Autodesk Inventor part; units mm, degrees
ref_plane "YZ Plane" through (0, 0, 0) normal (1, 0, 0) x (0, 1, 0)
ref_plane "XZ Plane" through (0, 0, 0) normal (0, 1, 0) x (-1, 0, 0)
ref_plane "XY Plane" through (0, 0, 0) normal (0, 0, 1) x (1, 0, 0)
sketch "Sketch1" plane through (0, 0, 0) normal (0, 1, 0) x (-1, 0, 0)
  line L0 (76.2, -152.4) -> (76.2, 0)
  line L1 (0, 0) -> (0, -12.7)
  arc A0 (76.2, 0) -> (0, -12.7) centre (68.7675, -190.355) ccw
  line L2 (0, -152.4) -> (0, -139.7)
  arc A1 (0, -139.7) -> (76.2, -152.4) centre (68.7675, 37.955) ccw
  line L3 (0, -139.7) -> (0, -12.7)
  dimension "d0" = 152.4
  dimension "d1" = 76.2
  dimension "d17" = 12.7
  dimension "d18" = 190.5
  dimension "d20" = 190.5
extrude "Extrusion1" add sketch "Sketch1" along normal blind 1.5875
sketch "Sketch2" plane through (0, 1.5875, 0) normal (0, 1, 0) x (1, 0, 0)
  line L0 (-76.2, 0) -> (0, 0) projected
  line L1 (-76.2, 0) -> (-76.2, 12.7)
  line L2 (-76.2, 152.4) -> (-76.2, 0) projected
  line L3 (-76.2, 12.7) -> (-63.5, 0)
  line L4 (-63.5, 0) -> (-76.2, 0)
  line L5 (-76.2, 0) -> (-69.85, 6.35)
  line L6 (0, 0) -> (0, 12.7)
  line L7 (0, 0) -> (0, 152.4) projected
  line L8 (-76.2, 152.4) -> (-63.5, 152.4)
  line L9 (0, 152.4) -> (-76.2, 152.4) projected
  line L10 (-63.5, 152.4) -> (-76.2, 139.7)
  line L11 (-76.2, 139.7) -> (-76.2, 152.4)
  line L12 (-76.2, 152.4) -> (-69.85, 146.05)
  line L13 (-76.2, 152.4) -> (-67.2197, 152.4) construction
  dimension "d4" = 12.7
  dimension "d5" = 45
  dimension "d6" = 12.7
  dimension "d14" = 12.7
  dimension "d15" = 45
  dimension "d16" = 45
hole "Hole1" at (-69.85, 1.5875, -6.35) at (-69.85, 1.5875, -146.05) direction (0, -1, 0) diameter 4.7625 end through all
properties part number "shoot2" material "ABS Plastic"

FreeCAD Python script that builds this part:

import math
import FreeCAD as App
import Part
import Sketcher

V = App.Vector
Q = App.Units.Quantity

doc = App.newDocument("Part")
params = doc.addObject("Spreadsheet::Sheet", "Params")
for row, (alias, value) in enumerate([
    ("sketch1_radius", "7.5 in"),
    ("sketch1_height", "6 in"),
    ("pad1_length", "0.0625 in"),
    ("sketch2_diameter", "0.1875 in"),
    ("hole_diameter", "0.1875 in"),
], start=1):
    params.set(f"A{row}", alias)
    params.set(f"B{row}", "=" + value)
    params.setAlias(f"B{row}", alias)

body = doc.addObject("PartDesign::Body", "Body")

# Sketch on XZ plane
sketch1 = body.newObject("Sketcher::SketchObject", "Sketch")
sketch1.AttachmentSupport = (doc.getObject("XZ_Plane"), [""])
sketch1.MapMode = "FlatFace"
sketch1.addGeometry([
    Part.ArcOfCircle(Part.Circle(V(-68.7675, 37.955, 0), V(0, 0, 1), 190.500047), math.radians(-92.236005), math.radians(-68.839351)),
    Part.LineSegment(V(-76.2, -152.4, 0), V(-76.2, 0, 0)),
    Part.ArcOfCircle(Part.Circle(V(-68.7675, -190.355, 0), V(0, 0, 1), 190.500047), math.radians(68.839351), math.radians(92.236005)),
    Part.LineSegment(V(0, -12.7, 0), V(0, -139.7, 0)),
], False)
sketch1.addConstraint([
    Sketcher.Constraint("Coincident", 0, 1, 1, 1),
    Sketcher.Constraint("Coincident", 1, 2, 2, 2),
    Sketcher.Constraint("Coincident", 2, 1, 3, 1),
    Sketcher.Constraint("Coincident", 3, 2, 0, 2),
    Sketcher.Constraint("Vertical", 1),
    Sketcher.Constraint("Vertical", 3),
    Sketcher.Constraint("Equal", 0, 2),
    Sketcher.Constraint("PointOnObject", 1, 2, -1),
    Sketcher.Constraint("PointOnObject", 2, 1, -2),
    Sketcher.Constraint("Vertical", 0, 3, 2, 3),
    Sketcher.Constraint("Radius", 0, Q("7.5 in")),
    Sketcher.Constraint("DistanceY", 1, 1, 1, 2, Q("6 in")),
    Sketcher.Constraint("DistanceX", 0, 1, -1, 1, Q("3 in")),
    Sketcher.Constraint("DistanceY", 2, 1, -1, 1, Q("0.5 in")),
])
sketch1.setExpression("Constraints[10]", "Params.sketch1_radius")
sketch1.setExpression("Constraints[11]", "Params.sketch1_height")
pad1 = body.newObject("PartDesign::Pad", "Pad")
pad1.Profile = sketch1
pad1.setExpression("Length", "Params.pad1_length")
pad1.Reversed = True

# Sketch on XZ plane
sketch2 = body.newObject("Sketcher::SketchObject", "Sketch001")
sketch2.AttachmentSupport = (doc.getObject("XZ_Plane"), [""])
sketch2.MapMode = "FlatFace"
sketch2.AttachmentOffset = App.Placement(V(0, 0, -0.0625 * 25.4), App.Rotation())
sketch2.addGeometry([
    Part.Circle(V(-69.85, -6.35, 0), V(0, 0, 1), 2.38125),
    Part.Circle(V(-69.85, -146.05, 0), V(0, 0, 1), 2.38125),
], False)
sketch2.addConstraint([
    Sketcher.Constraint("Equal", 0, 1),
    Sketcher.Constraint("Vertical", 0, 3, 1, 3),
    Sketcher.Constraint("Diameter", 0, Q("0.1875 in")),
    Sketcher.Constraint("DistanceY", 1, 3, 0, 3, Q("5.5 in")),
    Sketcher.Constraint("DistanceX", 0, 3, -1, 1, Q("2.75 in")),
    Sketcher.Constraint("DistanceY", 0, 3, -1, 1, Q("0.25 in")),
])
sketch2.setExpression("Constraints[2]", "Params.sketch2_diameter")
doc.recompute()
hole = body.newObject("PartDesign::Hole", "Hole")
hole.Profile = sketch2
hole.ThreadType = "None"
hole.setExpression("Diameter", "Params.hole_diameter")
hole.DepthType = "ThroughAll"
hole.Reversed = True

doc.recompute()
